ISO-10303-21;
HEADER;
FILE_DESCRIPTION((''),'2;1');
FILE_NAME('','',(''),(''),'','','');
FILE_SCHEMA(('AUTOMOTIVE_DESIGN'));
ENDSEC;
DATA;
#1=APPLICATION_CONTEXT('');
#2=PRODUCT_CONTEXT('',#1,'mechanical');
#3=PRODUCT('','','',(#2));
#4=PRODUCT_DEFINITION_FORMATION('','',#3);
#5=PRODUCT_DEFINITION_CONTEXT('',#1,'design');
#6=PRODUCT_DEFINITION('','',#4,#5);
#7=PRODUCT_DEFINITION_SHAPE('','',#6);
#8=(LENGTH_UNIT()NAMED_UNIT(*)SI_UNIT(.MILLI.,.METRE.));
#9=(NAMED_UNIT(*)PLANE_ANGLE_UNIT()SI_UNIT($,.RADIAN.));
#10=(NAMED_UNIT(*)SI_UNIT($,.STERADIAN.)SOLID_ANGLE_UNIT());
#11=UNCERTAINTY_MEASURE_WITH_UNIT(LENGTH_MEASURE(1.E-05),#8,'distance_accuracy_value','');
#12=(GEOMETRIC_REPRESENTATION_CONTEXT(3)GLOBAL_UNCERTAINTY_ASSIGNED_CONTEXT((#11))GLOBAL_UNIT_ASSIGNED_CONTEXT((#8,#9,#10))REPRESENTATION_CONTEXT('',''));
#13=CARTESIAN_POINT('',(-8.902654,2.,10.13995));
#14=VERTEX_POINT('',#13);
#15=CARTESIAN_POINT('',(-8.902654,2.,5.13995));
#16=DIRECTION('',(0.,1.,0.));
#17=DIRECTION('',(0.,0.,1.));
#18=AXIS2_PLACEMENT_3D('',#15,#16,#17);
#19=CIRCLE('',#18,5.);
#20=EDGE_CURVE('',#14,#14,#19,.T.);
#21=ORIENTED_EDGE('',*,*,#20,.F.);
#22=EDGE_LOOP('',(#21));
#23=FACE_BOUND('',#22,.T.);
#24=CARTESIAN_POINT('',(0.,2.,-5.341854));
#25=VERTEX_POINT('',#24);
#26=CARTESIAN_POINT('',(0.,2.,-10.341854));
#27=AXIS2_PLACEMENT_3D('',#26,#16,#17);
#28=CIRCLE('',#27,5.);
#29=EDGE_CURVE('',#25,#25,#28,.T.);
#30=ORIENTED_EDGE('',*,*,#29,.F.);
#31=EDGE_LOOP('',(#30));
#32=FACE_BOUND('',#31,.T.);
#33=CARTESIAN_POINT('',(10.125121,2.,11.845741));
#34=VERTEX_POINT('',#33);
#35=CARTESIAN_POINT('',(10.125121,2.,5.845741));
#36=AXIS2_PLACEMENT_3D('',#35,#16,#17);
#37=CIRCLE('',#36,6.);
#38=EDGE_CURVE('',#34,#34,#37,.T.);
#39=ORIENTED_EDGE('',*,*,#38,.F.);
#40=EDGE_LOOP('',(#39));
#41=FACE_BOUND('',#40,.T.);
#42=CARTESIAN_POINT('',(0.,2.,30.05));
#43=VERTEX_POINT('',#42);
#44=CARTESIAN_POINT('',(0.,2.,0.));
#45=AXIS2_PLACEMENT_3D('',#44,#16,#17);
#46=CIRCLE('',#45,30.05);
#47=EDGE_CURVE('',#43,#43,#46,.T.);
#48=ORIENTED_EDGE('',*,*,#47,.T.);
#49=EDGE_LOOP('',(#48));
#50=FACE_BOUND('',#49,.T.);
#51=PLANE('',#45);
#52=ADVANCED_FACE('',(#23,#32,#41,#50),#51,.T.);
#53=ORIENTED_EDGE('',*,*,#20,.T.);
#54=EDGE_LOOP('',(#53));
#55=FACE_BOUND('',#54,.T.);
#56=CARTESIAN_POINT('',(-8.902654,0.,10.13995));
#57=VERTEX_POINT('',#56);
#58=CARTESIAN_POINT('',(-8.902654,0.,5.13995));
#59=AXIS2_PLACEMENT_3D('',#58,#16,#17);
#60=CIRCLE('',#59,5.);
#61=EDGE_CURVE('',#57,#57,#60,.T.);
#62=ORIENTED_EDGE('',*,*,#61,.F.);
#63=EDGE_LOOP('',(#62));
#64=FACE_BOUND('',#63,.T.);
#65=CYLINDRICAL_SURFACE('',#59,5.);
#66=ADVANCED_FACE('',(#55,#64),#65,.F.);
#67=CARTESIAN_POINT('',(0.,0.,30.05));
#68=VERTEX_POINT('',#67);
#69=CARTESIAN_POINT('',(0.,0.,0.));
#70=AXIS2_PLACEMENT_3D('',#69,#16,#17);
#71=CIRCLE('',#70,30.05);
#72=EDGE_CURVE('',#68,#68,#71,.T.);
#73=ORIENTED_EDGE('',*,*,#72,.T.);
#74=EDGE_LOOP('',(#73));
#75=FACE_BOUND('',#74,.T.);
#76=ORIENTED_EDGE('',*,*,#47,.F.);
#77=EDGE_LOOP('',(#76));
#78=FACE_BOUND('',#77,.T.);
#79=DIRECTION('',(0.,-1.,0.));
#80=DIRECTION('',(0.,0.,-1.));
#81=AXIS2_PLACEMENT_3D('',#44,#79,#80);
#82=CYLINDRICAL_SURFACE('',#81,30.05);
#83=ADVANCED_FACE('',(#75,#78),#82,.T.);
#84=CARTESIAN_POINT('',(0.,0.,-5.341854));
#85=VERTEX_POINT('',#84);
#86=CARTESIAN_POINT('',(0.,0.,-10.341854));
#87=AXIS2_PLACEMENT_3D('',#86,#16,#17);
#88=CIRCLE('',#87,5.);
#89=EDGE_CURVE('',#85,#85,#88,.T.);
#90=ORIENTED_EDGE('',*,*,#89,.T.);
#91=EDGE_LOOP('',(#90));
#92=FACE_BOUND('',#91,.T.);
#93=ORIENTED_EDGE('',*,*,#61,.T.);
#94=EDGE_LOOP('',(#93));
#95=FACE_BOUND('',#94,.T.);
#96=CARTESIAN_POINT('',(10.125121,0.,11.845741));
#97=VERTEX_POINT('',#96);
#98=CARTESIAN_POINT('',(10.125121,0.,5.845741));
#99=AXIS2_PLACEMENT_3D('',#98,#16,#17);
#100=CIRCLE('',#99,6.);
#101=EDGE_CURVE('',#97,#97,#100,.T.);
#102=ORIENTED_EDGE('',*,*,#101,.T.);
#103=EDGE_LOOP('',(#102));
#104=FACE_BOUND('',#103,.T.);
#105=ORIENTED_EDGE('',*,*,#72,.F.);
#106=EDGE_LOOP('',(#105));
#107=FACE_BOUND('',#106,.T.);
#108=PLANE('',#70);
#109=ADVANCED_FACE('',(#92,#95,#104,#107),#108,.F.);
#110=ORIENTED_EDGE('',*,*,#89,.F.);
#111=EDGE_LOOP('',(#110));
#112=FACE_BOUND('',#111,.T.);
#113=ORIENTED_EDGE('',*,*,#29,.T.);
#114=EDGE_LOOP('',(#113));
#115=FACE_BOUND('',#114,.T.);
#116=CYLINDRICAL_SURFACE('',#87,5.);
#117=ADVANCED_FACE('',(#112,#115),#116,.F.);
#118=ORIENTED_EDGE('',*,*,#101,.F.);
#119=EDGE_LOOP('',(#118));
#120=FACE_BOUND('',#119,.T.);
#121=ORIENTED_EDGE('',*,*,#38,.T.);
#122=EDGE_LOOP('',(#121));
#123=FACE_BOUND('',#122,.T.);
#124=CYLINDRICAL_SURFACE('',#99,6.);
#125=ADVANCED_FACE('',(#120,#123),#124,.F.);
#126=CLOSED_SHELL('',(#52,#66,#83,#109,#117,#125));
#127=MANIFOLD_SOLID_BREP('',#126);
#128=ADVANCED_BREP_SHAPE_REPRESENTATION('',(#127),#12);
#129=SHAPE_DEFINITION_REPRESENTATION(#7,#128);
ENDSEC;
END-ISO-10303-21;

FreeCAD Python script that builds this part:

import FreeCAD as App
import Part
import Sketcher

doc = App.newDocument("Part")
params = doc.addObject("Spreadsheet::Sheet", "Params")
for row, (alias, value) in enumerate([
    ("sketch1_diameter", "60.1 mm"),
    ("pad1_length", "2 mm"),
    ("sketch2_diameter", "10 mm"),
    ("sketch2_diameter2", "12 mm"),
    ("pocket1_length", "2 mm"),
], start=1):
    params.set(f"A{row}", alias)
    params.set(f"B{row}", "=" + value)
    params.setAlias(f"B{row}", alias)

body = doc.addObject("PartDesign::Body", "Body")

sketch1 = body.newObject("Sketcher::SketchObject", "Sketch")
sketch1.AttachmentSupport = (doc.getObject("XZ_Plane"), [""])
sketch1.MapMode = "FlatFace"
sketch1.addGeometry(Part.Circle(App.Vector(0, 0, 0), App.Vector(0, 0, 1), 30), False)
sketch1.addConstraint([
    Sketcher.Constraint("Coincident", 0, 3, -1, 1),
    Sketcher.Constraint("Diameter", 0, 60.1),
])
sketch1.setExpression("Constraints[1]", "Params.sketch1_diameter")
pad1 = body.newObject("PartDesign::Pad", "Pad")
pad1.Profile = sketch1
pad1.setExpression("Length", "Params.pad1_length")
pad1.Reversed = True

sketch2 = body.newObject("Sketcher::SketchObject", "Sketch001")
sketch2.AttachmentSupport = (doc.getObject("XZ_Plane"), [""])
sketch2.MapMode = "FlatFace"
sketch2.AttachmentOffset = App.Placement(App.Vector(0, 0, -2), App.Rotation())
sketch2.addGeometry([
    Part.Circle(App.Vector(0, -10, 0), App.Vector(0, 0, 1), 5),
    Part.Circle(App.Vector(-9, 5, 0), App.Vector(0, 0, 1), 5),
    Part.Circle(App.Vector(10, 6, 0), App.Vector(0, 0, 1), 6),
], False)
sketch2.addConstraint([
    Sketcher.Constraint("Equal", 0, 1),
    Sketcher.Constraint("PointOnObject", 0, 3, -2),
    Sketcher.Constraint("Diameter", 0, 10.0),
    Sketcher.Constraint("Diameter", 2, 12.0),
    Sketcher.Constraint("DistanceY", -1, 1, 1, 3, 5.13995),
    Sketcher.Constraint("DistanceX", -1, 1, 2, 3, 10.125121),
    Sketcher.Constraint("DistanceY", -1, 1, 2, 3, 5.845741),
    Sketcher.Constraint("DistanceY", 0, 3, -1, 1, 10.341854),
    Sketcher.Constraint("DistanceX", 1, 3, -1, 1, 8.902654),
])
sketch2.setExpression("Constraints[2]", "Params.sketch2_diameter")
sketch2.setExpression("Constraints[3]", "Params.sketch2_diameter2")
pocket1 = body.newObject("PartDesign::Pocket", "Pocket")
pocket1.Profile = sketch2
pocket1.setExpression("Length", "Params.pocket1_length")
pocket1.Reversed = True

doc.recompute()
